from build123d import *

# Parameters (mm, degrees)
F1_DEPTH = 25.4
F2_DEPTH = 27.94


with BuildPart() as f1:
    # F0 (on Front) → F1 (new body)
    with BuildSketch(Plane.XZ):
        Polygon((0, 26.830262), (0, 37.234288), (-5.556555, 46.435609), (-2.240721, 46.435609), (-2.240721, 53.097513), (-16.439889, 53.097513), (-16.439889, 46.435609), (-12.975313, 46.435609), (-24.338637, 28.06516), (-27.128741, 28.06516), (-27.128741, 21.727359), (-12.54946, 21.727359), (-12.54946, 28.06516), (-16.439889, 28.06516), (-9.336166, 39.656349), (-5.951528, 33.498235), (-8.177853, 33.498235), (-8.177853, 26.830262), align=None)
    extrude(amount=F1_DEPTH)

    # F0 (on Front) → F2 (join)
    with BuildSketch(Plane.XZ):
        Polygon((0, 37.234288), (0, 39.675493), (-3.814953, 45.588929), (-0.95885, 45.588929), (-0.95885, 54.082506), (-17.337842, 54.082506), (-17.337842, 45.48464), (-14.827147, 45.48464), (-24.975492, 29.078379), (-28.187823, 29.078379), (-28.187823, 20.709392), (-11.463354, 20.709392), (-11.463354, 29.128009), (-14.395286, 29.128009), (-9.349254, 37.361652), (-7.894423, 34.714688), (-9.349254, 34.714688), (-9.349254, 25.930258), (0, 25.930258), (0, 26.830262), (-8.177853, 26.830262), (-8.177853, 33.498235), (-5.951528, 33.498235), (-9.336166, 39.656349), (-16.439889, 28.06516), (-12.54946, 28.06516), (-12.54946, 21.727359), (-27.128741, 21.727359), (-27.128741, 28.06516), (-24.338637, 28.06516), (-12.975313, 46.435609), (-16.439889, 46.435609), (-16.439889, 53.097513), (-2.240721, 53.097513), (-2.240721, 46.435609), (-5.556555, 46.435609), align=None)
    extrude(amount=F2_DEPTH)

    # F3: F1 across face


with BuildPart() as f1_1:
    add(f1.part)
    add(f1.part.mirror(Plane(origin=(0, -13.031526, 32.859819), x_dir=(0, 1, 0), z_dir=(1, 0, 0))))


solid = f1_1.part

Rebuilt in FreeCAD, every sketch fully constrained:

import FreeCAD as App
import Part
import Sketcher
from FreeCAD import Vector
Q = App.Units.Quantity


def add_polygon(sketch, points):
    """Adds a closed chain of lines whose ends are joined by coincident constraints."""
    first, n = sketch.GeometryCount, len(points)
    for a, b in zip(points, points[1:] + points[:1]):
        sketch.addGeometry(Part.LineSegment(App.Vector(*a, 0), App.Vector(*b, 0)), False)
    for i in range(n):
        sketch.addConstraint(Sketcher.Constraint("Coincident", first + i, 2, first + (i + 1) % n, 1))

doc = App.newDocument("Part")
body = doc.addObject("PartDesign::Body", "Body")

sketch1 = body.newObject("Sketcher::SketchObject", "Sketch")
sketch1.AttachmentSupport = (doc.getObject("XZ_Plane"), [""])
sketch1.MapMode = "FlatFace"
add_polygon(sketch1, [(0, 26.8), (0, 37.2), (-5.6, 46.4), (-2.2, 46.4), (-2.2, 53.1), (-16.4, 53.1), (-16.4, 46.4), (-13, 46.4), (-24.3, 28.1), (-27.1, 28.1), (-27.1, 21.7), (-12.5, 21.7), (-12.5, 28.1), (-16.4, 28.1), (-9.3, 39.7), (-6, 33.5), (-8.2, 33.5), (-8.2, 26.8)])
sketch1.addConstraint([
    Sketcher.Constraint("Vertical", 0),
    Sketcher.Constraint("Horizontal", 2),
    Sketcher.Constraint("Vertical", 3),
    Sketcher.Constraint("Horizontal", 4),
    Sketcher.Constraint("Vertical", 5),
    Sketcher.Constraint("Horizontal", 6),
    Sketcher.Constraint("Horizontal", 8),
    Sketcher.Constraint("Vertical", 9),
    Sketcher.Constraint("Horizontal", 10),
    Sketcher.Constraint("Vertical", 11),
    Sketcher.Constraint("Horizontal", 12),
    Sketcher.Constraint("Horizontal", 15),
    Sketcher.Constraint("Vertical", 16),
    Sketcher.Constraint("Horizontal", 17),
    Sketcher.Constraint("PointOnObject", 0, 2, -2),
    Sketcher.Constraint("Horizontal", 2, 2, 5, 2),
    Sketcher.Constraint("Horizontal", 8, 2, 11, 2),
    Sketcher.Constraint("Vertical", 5, 2, 12, 2),
    Sketcher.Constraint("DistanceY", 9, 2, 9, 1, Q("6.337801 mm")),
    Sketcher.Constraint("DistanceY", 13, 2, 6, 2, Q("0.2669 in")),
    Sketcher.Constraint("Distance", 13, Q("13.594798 mm")),
    Sketcher.Constraint("DistanceX", 10, 1, 10, 2, Q("14.579281 mm")),
    Sketcher.Constraint("DistanceX", 12, 2, 12, 1, Q("3.890429 mm")),
    Sketcher.Constraint("Distance", 7, Q("21.600892 mm")),
    Sketcher.Constraint("Distance", 14, Q("7.026958 mm")),
    Sketcher.Constraint("DistanceX", 2, 1, 2, 2, Q("3.315834 mm")),
    Sketcher.Constraint("DistanceX", 4, 2, 4, 1, Q("14.199168 mm")),
    Sketcher.Constraint("DistanceX", 6, 1, 6, 2, Q("3.464576 mm")),
    Sketcher.Constraint("DistanceX", 8, 2, 8, 1, Q("2.790104 mm")),
    Sketcher.Constraint("DistanceX", 15, 2, 15, 1, Q("2.226325 mm")),
    Sketcher.Constraint("DistanceX", 17, 1, 17, 2, Q("8.177853 mm")),
    Sketcher.Constraint("DistanceY", 0, 1, 0, 2, Q("10.404026 mm")),
    Sketcher.Constraint("DistanceY", 3, 1, 3, 2, Q("6.661904 mm")),
    Sketcher.Constraint("DistanceY", 16, 2, 16, 1, Q("6.667973 mm")),
    Sketcher.Constraint("DistanceY", -1, 1, 1, 2, Q("46.435609 mm")),
    Sketcher.Constraint("DistanceX", 2, 2, -1, 1, Q("2.240721 mm")),
])
pad1 = body.newObject("PartDesign::Pad", "Pad")
pad1.Profile = sketch1
pad1.Length = Q("1 in")

sketch2 = body.newObject("Sketcher::SketchObject", "Sketch001")
sketch2.AttachmentSupport = (doc.getObject("XZ_Plane"), [""])
sketch2.MapMode = "FlatFace"
add_polygon(sketch2, [(0, 37.2), (0, 39.7), (-3.8, 45.6), (-1, 45.6), (-1, 54.1), (-17.3, 54.1), (-17.3, 45.5), (-14.8, 45.5), (-25, 29.1), (-28.2, 29.1), (-28.2, 20.7), (-11.5, 20.7), (-11.5, 29.1), (-14.4, 29.1), (-9.3, 37.4), (-7.9, 34.7), (-9.3, 34.7), (-9.3, 25.9), (0, 25.9), (0, 26.8), (-8.2, 26.8), (-8.2, 33.5), (-6, 33.5), (-9.3, 39.7), (-16.4, 28.1), (-12.5, 28.1), (-12.5, 21.7), (-27.1, 21.7), (-27.1, 28.1), (-24.3, 28.1), (-13, 46.4), (-16.4, 46.4), (-16.4, 53.1), (-2.2, 53.1), (-2.2, 46.4), (-5.6, 46.4)])
sketch2.addConstraint([
    Sketcher.Constraint("Vertical", 0),
    Sketcher.Constraint("Horizontal", 2),
    Sketcher.Constraint("Vertical", 3),
    Sketcher.Constraint("Horizontal", 4),
    Sketcher.Constraint("Vertical", 5),
    Sketcher.Constraint("Horizontal", 6),
    Sketcher.Constraint("Horizontal", 8),
    Sketcher.Constraint("Vertical", 9),
    Sketcher.Constraint("Horizontal", 10),
    Sketcher.Constraint("Vertical", 11),
    Sketcher.Constraint("Horizontal", 12),
    Sketcher.Constraint("Horizontal", 15),
    Sketcher.Constraint("Vertical", 16),
    Sketcher.Constraint("Horizontal", 17),
    Sketcher.Constraint("Vertical", 18),
    Sketcher.Constraint("Horizontal", 19),
    Sketcher.Constraint("Vertical", 20),
    Sketcher.Constraint("Horizontal", 21),
    Sketcher.Constraint("Horizontal", 24),
    Sketcher.Constraint("Vertical", 25),
    Sketcher.Constraint("Horizontal", 26),
    Sketcher.Constraint("Vertical", 27),
    Sketcher.Constraint("Horizontal", 28),
    Sketcher.Constraint("Horizontal", 30),
    Sketcher.Constraint("Vertical", 31),
    Sketcher.Constraint("Horizontal", 32),
    Sketcher.Constraint("Vertical", 33),
    Sketcher.Constraint("Horizontal", 34),
    Sketcher.Constraint("PointOnObject", 0, 2, -2),
    Sketcher.Constraint("PointOnObject", 17, 2, -2),
    Sketcher.Constraint("Parallel", 14, 22),
    Sketcher.Constraint("Parallel", 13, 23),
    Sketcher.Constraint("Parallel", 7, 29),
    Sketcher.Constraint("Horizontal", 24, 2, 27, 2),
    Sketcher.Constraint("Horizontal", 30, 2, 33, 2),
    Sketcher.Constraint("Vertical", 13, 2, 15, 2),
    Sketcher.Constraint("Vertical", 23, 2, 30, 2),
    Sketcher.Constraint("Distance", 7, Q("0.7595001 in")),
    Sketcher.Constraint("DistanceY", 25, 2, 25, 1, Q("6.337801 mm")),
    Sketcher.Constraint("DistanceY", 22, 2, 29, 2, Q("0.2669 in")),
    Sketcher.Constraint("Distance", 23, Q("13.594798 mm")),
    Sketcher.Constraint("DistanceX", 4, 2, 4, 1, Q("16.378992 mm")),
    Sketcher.Constraint("DistanceX", 8, 2, 8, 1, Q("3.212331 mm")),
    Sketcher.Constraint("DistanceX", 10, 1, 10, 2, Q("16.724469 mm")),
    Sketcher.Constraint("DistanceX", 12, 2, 12, 1, Q("2.931932 mm")),
    Sketcher.Constraint("DistanceX", 15, 2, 15, 1, Q("1.454831 mm")),
    Sketcher.Constraint("DistanceX", 24, 1, 24, 2, Q("3.890429 mm")),
    Sketcher.Constraint("DistanceX", 26, 2, 26, 1, Q("14.579281 mm")),
    Sketcher.Constraint("DistanceY", 16, 2, 16, 1, Q("8.78443 mm")),
    Sketcher.Constraint("DistanceY", 9, 2, 0, 2, Q("18.966101 mm")),
    Sketcher.Constraint("DistanceX", 11, 2, 13, 2, Q("2.1141 mm")),
    Sketcher.Constraint("DistanceX", 13, 2, 1, 2, Q("5.534301 mm")),
    Sketcher.Constraint("DistanceX", 16, 2, 19, 2, Q("1.171401 mm")),
    Sketcher.Constraint("DistanceY", 25, 2, 16, 2, Q("4.202899 mm")),
    Sketcher.Constraint("DistanceY", 14, 2, 35, 2, Q("2.5196 mm")),
    Sketcher.Constraint("Distance", 1, Q("7.037229 mm")),
    Sketcher.Constraint("Distance", 13, Q("9.656879 mm")),
    Sketcher.Constraint("Distance", 22, Q("7.026958 mm")),
    Sketcher.Constraint("Distance", 29, Q("21.600892 mm")),
    Sketcher.Constraint("DistanceX", 2, 1, 2, 2, Q("2.856103 mm")),
    Sketcher.Constraint("DistanceX", 17, 1, 17, 2, Q("9.349254 mm")),
    Sketcher.Constraint("DistanceX", 21, 1, 21, 2, Q("2.226325 mm")),
    Sketcher.Constraint("DistanceX", 28, 1, 28, 2, Q("2.790104 mm")),
    Sketcher.Constraint("DistanceX", 32, 1, 32, 2, Q("14.199168 mm")),
    Sketcher.Constraint("DistanceX", 34, 2, 34, 1, Q("3.315834 mm")),
    Sketcher.Constraint("DistanceY", 0, 1, 0, 2, Q("2.441205 mm")),
    Sketcher.Constraint("DistanceY", 3, 1, 3, 2, Q("8.493577 mm")),
    Sketcher.Constraint("DistanceY", 5, 2, 5, 1, Q("8.597866 mm")),
    Sketcher.Constraint("DistanceY", 11, 1, 11, 2, Q("8.418617 mm")),
    Sketcher.Constraint("DistanceY", 18, 1, 18, 2, Q("0.900004 mm")),
    Sketcher.Constraint("DistanceY", 31, 1, 31, 2, Q("6.661904 mm")),
    Sketcher.Constraint("DistanceY", -1, 1, 1, 2, Q("45.588929 mm")),
])
pad2 = body.newObject("PartDesign::Pad", "Pad001")
pad2.Profile = sketch2
pad2.Length = Q("1.1 in")
body2 = doc.addObject("PartDesign::Body", "Body001")
doc.recompute()

body2.BaseFeature = body
doc.recompute()

mirroring = doc.addObject("Part::Mirroring", "Mirroring")
mirroring.Source = body
mirroring.Base = Vector(0, -13.031526, 32.859819)
mirroring.Normal = Vector(1, 0, 0)
body3 = doc.addObject("PartDesign::Body", "Body002")
body3.BaseFeature = mirroring
boolean = body2.newObject("PartDesign::Boolean", "Boolean")
boolean.Type = "Fuse"
boolean.addObjects([body3])
doc.recompute()
mirroring.Visibility = False

doc.recompute()
